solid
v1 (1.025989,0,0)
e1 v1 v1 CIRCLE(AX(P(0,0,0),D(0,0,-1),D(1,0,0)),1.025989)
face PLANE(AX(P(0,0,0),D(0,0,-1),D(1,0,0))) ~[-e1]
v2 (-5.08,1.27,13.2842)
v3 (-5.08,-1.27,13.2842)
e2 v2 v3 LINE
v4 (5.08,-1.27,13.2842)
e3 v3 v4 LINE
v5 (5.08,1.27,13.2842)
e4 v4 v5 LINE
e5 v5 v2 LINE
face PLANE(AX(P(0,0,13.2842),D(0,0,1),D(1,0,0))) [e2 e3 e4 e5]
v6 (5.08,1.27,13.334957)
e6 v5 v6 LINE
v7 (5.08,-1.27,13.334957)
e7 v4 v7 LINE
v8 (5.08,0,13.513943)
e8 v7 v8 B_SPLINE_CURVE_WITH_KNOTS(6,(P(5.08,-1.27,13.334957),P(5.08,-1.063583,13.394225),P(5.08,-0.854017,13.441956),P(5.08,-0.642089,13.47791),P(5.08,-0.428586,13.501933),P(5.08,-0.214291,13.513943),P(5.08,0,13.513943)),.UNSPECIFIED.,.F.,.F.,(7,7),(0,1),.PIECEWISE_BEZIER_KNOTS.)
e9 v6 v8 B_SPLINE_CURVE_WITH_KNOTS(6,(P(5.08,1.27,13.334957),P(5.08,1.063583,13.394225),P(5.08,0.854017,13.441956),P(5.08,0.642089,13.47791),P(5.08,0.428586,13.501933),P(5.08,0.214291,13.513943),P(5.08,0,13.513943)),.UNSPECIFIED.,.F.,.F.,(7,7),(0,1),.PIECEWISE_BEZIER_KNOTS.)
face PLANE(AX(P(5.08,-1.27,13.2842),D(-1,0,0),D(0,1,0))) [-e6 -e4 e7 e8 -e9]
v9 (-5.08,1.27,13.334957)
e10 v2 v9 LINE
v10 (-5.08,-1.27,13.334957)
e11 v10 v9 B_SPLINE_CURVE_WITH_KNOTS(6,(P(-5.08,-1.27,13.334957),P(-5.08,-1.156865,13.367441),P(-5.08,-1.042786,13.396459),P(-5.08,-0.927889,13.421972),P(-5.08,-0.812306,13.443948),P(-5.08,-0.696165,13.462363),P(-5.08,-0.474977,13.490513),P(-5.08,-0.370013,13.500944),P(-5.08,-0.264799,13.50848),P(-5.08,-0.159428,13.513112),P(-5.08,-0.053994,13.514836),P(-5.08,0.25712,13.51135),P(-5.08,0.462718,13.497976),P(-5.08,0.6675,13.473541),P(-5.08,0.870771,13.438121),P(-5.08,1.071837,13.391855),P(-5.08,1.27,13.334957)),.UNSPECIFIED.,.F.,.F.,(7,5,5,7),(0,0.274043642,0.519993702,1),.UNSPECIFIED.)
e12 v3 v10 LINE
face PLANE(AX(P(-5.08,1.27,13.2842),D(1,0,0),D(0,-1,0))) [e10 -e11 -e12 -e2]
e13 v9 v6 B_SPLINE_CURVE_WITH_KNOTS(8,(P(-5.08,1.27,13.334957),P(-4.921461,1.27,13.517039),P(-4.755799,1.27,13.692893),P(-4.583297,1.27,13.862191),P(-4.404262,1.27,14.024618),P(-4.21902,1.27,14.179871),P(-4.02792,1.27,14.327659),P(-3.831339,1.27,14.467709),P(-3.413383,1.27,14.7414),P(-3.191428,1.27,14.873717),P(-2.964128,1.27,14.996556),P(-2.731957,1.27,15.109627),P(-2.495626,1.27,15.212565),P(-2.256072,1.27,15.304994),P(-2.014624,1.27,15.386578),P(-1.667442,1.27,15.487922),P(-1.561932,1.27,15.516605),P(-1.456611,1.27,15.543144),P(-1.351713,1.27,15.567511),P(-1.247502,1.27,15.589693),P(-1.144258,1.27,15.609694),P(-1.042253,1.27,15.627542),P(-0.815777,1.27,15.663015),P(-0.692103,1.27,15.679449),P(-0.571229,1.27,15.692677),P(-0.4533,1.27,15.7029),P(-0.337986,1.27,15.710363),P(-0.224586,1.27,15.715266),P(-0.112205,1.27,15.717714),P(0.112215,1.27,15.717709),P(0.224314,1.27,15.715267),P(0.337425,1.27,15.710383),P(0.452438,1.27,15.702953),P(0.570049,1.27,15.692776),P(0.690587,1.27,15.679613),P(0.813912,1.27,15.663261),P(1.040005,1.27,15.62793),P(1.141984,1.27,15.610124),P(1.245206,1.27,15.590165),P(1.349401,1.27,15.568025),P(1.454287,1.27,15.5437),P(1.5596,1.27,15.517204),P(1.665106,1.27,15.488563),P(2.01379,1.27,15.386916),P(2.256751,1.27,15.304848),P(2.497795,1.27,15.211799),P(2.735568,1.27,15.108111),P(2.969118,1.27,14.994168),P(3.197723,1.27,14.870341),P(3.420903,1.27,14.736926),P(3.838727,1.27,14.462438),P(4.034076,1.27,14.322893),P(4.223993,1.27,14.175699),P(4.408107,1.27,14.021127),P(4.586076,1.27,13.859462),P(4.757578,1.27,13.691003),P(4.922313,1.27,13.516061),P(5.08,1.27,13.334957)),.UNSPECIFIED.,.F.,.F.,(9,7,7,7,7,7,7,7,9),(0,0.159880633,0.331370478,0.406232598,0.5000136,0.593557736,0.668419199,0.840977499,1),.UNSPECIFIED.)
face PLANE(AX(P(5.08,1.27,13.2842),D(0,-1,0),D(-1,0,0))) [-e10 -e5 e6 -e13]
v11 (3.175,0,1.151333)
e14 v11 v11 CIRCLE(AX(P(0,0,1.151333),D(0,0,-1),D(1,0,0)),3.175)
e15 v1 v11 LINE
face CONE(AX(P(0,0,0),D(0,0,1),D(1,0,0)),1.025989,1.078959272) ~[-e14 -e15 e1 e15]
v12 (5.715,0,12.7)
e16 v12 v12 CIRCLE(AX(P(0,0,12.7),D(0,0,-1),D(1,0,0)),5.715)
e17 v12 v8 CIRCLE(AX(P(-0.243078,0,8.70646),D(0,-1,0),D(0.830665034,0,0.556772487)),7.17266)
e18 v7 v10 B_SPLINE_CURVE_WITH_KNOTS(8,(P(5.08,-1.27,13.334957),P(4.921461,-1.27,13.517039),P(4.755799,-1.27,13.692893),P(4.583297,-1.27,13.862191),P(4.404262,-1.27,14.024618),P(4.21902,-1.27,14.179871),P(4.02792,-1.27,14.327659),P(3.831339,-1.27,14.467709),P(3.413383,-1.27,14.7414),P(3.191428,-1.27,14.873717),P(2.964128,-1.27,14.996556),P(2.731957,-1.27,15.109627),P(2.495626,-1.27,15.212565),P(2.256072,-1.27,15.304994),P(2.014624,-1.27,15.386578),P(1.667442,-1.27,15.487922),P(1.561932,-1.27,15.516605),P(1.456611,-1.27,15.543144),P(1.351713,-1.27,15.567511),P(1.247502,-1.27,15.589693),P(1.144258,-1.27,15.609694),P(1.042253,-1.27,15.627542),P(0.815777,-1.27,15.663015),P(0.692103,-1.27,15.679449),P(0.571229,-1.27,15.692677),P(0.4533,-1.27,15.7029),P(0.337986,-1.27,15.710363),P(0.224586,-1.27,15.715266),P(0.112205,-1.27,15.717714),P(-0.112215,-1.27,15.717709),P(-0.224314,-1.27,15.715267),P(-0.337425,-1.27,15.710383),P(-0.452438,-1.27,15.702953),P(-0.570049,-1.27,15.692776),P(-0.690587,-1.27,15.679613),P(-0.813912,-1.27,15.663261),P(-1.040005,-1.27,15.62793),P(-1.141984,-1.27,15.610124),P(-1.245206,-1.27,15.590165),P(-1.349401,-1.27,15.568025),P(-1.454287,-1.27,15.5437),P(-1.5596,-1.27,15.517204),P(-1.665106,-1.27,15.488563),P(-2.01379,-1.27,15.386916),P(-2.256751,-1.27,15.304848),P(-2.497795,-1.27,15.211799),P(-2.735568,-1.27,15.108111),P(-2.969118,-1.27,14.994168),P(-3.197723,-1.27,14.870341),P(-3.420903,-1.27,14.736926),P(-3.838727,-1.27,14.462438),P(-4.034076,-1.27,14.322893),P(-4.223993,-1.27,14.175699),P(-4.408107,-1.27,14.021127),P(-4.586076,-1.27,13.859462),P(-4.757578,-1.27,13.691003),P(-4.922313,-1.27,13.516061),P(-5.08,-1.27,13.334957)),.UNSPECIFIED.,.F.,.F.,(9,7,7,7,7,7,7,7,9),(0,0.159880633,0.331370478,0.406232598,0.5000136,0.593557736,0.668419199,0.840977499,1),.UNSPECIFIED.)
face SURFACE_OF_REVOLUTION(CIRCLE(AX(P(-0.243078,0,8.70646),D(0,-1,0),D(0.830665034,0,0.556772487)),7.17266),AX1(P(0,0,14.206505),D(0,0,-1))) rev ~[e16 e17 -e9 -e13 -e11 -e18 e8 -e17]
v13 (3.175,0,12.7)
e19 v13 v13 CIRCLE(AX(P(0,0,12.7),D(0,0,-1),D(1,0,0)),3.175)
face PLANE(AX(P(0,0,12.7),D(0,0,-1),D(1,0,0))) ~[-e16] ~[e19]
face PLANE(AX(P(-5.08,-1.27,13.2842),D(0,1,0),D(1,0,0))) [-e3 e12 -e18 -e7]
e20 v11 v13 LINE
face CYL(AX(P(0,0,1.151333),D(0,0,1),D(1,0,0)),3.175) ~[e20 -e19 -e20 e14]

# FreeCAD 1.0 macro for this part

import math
import FreeCAD as App
import Part
import Sketcher
Q = App.Units.Quantity

doc = App.newDocument("Part")
body = doc.addObject("PartDesign::Body", "Body")

# Sketch on XZ plane
sketch1 = body.newObject("Sketcher::SketchObject", "Sketch")
sketch1.AttachmentSupport = (doc.getObject("XZ_Plane"), [""])
sketch1.MapMode = "FlatFace"
sketch1.addGeometry(Part.LineSegment(App.Vector(0, 0, 0), App.Vector(1, 0, 0)), False)
sketch1.addGeometry(Part.LineSegment(App.Vector(1, 0, 0), App.Vector(3.2, 1.2, 0)), False)
sketch1.addGeometry(Part.LineSegment(App.Vector(3.2, 1.2, 0), App.Vector(3.2, 12.7, 0)), False)
sketch1.addGeometry(Part.LineSegment(App.Vector(3.2, 12.7, 0), App.Vector(5.7, 12.7, 0)), False)
sketch1.addGeometry(Part.ArcOfCircle(Part.Circle(App.Vector(-0.2, 8.7, 0), App.Vector(0, 0, 1), 7.2), math.radians(34), math.radians(88)), False)
sketch1.addGeometry(Part.LineSegment(App.Vector(0, 15.9, 0), App.Vector(0, 0, 0)), False)
sketch1.addConstraint(Sketcher.Constraint("Coincident", 0, 2, 1, 1))
sketch1.addConstraint(Sketcher.Constraint("Coincident", 1, 2, 2, 1))
sketch1.addConstraint(Sketcher.Constraint("Coincident", 2, 2, 3, 1))
sketch1.addConstraint(Sketcher.Constraint("Coincident", 3, 2, 4, 1))
sketch1.addConstraint(Sketcher.Constraint("Coincident", 4, 2, 5, 1))
sketch1.addConstraint(Sketcher.Constraint("Coincident", 5, 2, 0, 1))
sketch1.addConstraint(Sketcher.Constraint("Horizontal", 0))
sketch1.addConstraint(Sketcher.Constraint("Vertical", 2))
sketch1.addConstraint(Sketcher.Constraint("Horizontal", 3))
sketch1.addConstraint(Sketcher.Constraint("Vertical", 5))
sketch1.addConstraint(Sketcher.Constraint("Coincident", 5, 2, -1, 1))
sketch1.addConstraint(Sketcher.Constraint("DistanceX", 3, 1, 3, 2, Q("0.1 in")))
sketch1.addConstraint(Sketcher.Constraint("DistanceY", -1, 1, 2, 2, Q("0.5 in")))
sketch1.addConstraint(Sketcher.Constraint("DistanceY", 5, 2, 5, 1, Q("0.625 in")))
sketch1.addConstraint(Sketcher.Constraint("DistanceX", -1, 1, 1, 2, Q("0.125 in")))
sketch1.addConstraint(Sketcher.Constraint("Radius", 4, 7.17266))
sketch1.addConstraint(Sketcher.Constraint("DistanceX", 0, 1, 0, 2, 1.025989))
sketch1.addConstraint(Sketcher.Constraint("DistanceY", 2, 1, 2, 2, 11.548667))
revolution = body.newObject("PartDesign::Revolution", "Revolution")
revolution.Profile = sketch1
revolution.ReferenceAxis = (sketch1, ["V_Axis"])
revolution.Angle = 360

# Sketch on XY plane
sketch2 = body.newObject("Sketcher::SketchObject", "Sketch001")
sketch2.AttachmentSupport = (doc.getObject("XY_Plane"), [""])
sketch2.MapMode = "FlatFace"
sketch2.AttachmentOffset = App.Placement(App.Vector(0, 0, 0.523 * 25.4), App.Rotation())
sketch2.addGeometry(Part.LineSegment(App.Vector(5.1, 1.3, 0), App.Vector(-5.1, 1.3, 0)), False)
sketch2.addGeometry(Part.LineSegment(App.Vector(-5.1, 1.3, 0), App.Vector(-5.1, -1.3, 0)), False)
sketch2.addGeometry(Part.LineSegment(App.Vector(-5.1, -1.3, 0), App.Vector(5.1, -1.3, 0)), False)
sketch2.addGeometry(Part.LineSegment(App.Vector(5.1, -1.3, 0), App.Vector(5.1, 1.3, 0)), False)
sketch2.addConstraint(Sketcher.Constraint("Coincident", 0, 2, 1, 1))
sketch2.addConstraint(Sketcher.Constraint("Coincident", 1, 2, 2, 1))
sketch2.addConstraint(Sketcher.Constraint("Coincident", 2, 2, 3, 1))
sketch2.addConstraint(Sketcher.Constraint("Coincident", 3, 2, 0, 1))
sketch2.addConstraint(Sketcher.Constraint("Horizontal", 0))
sketch2.addConstraint(Sketcher.Constraint("Vertical", 1))
sketch2.addConstraint(Sketcher.Constraint("Horizontal", 2))
sketch2.addConstraint(Sketcher.Constraint("Vertical", 3))
sketch2.addConstraint(Sketcher.Constraint("Symmetric", 0, 2, 2, 2, -1, 1))
sketch2.addConstraint(Sketcher.Constraint("DistanceX", 0, 2, 0, 1, Q("0.4 in")))
sketch2.addConstraint(Sketcher.Constraint("DistanceY", 1, 2, 1, 1, Q("0.1 in")))
pocket1 = body.newObject("PartDesign::Pocket", "Pocket")
pocket1.Profile = sketch2
pocket1.Type = "ThroughAll"
pocket1.Reversed = True

doc.recompute()
